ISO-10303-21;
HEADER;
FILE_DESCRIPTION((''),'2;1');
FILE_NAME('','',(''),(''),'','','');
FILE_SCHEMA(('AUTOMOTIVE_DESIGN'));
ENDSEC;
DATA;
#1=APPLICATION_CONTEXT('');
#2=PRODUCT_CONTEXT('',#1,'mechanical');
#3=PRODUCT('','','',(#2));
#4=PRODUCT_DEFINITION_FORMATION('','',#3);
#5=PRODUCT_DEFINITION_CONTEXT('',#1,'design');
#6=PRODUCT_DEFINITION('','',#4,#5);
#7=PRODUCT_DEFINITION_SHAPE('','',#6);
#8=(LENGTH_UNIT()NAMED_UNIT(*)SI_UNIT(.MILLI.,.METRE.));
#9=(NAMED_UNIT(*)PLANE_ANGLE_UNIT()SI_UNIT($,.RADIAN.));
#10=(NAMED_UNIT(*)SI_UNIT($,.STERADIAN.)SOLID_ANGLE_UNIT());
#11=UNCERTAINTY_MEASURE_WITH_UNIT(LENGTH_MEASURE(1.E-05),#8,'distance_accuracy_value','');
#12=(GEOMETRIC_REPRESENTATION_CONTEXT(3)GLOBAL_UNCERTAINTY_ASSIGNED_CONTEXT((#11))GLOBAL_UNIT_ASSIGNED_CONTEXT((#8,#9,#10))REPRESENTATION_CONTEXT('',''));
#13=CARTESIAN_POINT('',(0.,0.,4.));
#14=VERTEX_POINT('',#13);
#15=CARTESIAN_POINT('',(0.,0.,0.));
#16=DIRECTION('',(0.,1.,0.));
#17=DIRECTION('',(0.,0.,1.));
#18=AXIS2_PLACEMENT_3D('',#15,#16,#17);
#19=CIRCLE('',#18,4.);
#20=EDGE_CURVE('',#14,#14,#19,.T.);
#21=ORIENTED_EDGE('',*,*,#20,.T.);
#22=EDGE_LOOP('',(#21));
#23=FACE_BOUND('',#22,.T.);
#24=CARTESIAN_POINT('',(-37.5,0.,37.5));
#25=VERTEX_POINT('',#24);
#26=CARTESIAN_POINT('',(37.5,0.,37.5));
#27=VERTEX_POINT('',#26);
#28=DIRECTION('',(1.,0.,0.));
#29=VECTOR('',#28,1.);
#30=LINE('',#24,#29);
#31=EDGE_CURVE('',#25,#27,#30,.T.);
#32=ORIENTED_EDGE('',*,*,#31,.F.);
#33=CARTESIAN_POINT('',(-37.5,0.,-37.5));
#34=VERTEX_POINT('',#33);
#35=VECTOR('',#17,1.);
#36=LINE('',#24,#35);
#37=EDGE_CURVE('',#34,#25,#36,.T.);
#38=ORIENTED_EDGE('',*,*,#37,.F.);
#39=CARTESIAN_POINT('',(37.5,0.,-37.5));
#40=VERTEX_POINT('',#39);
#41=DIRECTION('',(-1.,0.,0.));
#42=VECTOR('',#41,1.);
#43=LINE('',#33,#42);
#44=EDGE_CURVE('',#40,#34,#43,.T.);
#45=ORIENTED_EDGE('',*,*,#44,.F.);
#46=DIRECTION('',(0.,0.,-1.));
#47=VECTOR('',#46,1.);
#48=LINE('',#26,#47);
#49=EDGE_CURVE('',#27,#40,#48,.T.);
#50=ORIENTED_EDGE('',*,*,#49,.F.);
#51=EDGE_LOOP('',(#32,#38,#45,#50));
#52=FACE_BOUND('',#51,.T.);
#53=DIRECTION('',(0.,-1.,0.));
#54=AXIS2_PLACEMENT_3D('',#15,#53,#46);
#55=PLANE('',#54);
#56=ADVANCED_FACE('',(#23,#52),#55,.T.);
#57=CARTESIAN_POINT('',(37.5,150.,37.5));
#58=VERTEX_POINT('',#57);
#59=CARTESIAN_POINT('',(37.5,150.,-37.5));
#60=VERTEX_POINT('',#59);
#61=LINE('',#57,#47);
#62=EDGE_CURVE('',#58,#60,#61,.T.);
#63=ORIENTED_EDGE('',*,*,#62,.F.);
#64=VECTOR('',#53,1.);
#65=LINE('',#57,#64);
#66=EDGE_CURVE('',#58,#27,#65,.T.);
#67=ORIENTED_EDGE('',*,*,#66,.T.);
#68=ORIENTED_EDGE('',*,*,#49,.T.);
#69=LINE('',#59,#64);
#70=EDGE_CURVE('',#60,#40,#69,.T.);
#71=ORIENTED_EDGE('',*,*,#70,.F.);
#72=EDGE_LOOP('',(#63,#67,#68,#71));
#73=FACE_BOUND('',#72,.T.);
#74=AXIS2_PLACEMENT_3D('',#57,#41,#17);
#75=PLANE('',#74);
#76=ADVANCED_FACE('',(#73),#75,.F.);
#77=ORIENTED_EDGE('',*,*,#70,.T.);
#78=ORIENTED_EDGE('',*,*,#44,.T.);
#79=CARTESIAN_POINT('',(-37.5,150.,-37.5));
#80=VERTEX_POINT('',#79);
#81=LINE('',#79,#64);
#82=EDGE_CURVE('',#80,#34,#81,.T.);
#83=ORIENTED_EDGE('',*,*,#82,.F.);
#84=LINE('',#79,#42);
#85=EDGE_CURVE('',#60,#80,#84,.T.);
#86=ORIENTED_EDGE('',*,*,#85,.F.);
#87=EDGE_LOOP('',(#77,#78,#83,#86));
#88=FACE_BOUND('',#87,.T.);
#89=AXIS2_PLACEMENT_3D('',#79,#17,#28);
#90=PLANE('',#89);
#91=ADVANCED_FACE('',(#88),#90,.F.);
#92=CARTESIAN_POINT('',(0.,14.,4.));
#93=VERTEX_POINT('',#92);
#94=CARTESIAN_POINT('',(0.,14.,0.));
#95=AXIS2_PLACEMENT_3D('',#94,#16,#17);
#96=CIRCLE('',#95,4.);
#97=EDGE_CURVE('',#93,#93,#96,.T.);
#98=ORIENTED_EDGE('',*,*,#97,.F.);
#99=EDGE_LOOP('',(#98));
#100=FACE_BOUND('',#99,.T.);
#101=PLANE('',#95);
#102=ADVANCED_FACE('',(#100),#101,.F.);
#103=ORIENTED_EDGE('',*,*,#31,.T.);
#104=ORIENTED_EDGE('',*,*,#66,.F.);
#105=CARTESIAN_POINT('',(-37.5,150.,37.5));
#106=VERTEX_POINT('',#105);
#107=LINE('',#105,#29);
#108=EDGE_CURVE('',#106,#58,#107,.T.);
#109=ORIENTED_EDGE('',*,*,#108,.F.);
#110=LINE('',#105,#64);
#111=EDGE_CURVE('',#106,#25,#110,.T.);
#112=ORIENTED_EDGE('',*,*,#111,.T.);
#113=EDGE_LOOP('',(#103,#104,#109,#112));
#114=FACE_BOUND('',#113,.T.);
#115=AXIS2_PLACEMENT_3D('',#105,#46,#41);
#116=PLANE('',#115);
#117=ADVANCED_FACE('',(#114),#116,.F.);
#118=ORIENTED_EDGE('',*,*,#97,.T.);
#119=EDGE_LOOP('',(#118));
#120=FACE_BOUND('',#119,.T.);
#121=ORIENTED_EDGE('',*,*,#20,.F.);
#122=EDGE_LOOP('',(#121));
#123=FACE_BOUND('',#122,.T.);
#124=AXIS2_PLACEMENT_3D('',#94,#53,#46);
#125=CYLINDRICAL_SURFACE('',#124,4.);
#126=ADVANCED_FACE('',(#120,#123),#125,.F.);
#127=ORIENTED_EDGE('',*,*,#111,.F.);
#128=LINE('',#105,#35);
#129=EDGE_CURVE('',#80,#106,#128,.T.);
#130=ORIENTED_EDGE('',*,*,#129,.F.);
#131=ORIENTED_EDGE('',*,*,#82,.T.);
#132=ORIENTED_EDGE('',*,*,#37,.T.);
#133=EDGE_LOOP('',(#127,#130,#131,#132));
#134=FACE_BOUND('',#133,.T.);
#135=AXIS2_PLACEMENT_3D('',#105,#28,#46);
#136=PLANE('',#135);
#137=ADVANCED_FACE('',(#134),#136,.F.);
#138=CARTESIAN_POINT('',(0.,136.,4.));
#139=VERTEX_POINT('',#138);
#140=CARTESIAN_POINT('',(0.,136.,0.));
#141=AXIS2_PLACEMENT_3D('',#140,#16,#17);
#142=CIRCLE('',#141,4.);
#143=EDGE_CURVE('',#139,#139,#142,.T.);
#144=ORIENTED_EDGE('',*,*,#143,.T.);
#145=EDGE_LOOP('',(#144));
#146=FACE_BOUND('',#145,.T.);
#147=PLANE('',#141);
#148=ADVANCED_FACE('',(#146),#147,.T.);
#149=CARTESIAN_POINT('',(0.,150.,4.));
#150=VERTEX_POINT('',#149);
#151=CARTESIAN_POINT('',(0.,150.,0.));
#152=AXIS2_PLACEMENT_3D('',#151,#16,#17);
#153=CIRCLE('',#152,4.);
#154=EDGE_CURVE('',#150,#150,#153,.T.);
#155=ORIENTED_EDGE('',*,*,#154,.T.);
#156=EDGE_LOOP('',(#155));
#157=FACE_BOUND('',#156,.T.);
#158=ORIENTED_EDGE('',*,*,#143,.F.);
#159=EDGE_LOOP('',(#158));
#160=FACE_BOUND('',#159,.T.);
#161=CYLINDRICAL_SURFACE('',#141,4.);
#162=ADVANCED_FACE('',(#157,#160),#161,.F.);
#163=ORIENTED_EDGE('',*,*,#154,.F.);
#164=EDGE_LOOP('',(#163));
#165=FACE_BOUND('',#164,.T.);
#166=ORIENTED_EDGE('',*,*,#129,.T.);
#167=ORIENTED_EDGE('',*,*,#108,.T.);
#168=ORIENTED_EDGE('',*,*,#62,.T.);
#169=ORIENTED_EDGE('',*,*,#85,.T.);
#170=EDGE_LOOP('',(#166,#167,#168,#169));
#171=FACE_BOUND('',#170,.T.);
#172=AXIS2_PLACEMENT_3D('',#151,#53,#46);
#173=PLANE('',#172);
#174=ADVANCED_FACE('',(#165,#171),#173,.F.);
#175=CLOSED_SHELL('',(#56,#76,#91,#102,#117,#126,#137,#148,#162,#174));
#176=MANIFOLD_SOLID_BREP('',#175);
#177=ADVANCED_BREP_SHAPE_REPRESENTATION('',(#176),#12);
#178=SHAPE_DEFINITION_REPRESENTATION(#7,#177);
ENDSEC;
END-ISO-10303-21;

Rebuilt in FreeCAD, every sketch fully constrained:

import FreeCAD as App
import Part
import Sketcher

V = App.Vector
Q = App.Units.Quantity


def add_polygon(sketch, points):
    """Adds a closed chain of lines whose ends are joined by coincident constraints."""
    first, n = sketch.GeometryCount, len(points)
    for a, b in zip(points, points[1:] + points[:1]):
        sketch.addGeometry(Part.LineSegment(App.Vector(*a, 0), App.Vector(*b, 0)), False)
    for i in range(n):
        sketch.addConstraint(Sketcher.Constraint("Coincident", first + i, 2, first + (i + 1) % n, 1))

doc = App.newDocument("Part")
body = doc.addObject("PartDesign::Body", "Body")

sketch1 = body.newObject("Sketcher::SketchObject", "Sketch")
sketch1.AttachmentSupport = (doc.getObject("XZ_Plane"), [""])
sketch1.MapMode = "FlatFace"
add_polygon(sketch1, [(-37.5, -37.5), (-37.5, 37.5), (37.5, 37.5), (37.5, -37.5)])
sketch1.addConstraint(Sketcher.Constraint("Vertical", 0))
sketch1.addConstraint(Sketcher.Constraint("Horizontal", 1))
sketch1.addConstraint(Sketcher.Constraint("Vertical", 2))
sketch1.addConstraint(Sketcher.Constraint("Horizontal", 3))
sketch1.addConstraint(Sketcher.Constraint("Symmetric", 0, 2, 2, 2, -1, 1))
sketch1.addConstraint(Sketcher.Constraint("Equal", 3, 0))
sketch1.addConstraint(Sketcher.Constraint("DistanceX", 1, 1, 1, 2, Q("75 mm")))
pad1 = body.newObject("PartDesign::Pad", "Pad")
pad1.Profile = sketch1
pad1.Length = 150
pad1.Reversed = True

sketch2 = body.newObject("Sketcher::SketchObject", "Sketch001")
sketch2.AttachmentSupport = (doc.getObject("XZ_Plane"), [""])
sketch2.MapMode = "FlatFace"
sketch2.addGeometry(Part.Circle(V(0, 0, 0), V(0, 0, 1), 4), False)
sketch2.addConstraint(Sketcher.Constraint("Coincident", 0, 3, -1, 1))
sketch2.addConstraint(Sketcher.Constraint("Diameter", 0, Q("8 mm")))
pocket1 = body.newObject("PartDesign::Pocket", "Pocket")
pocket1.Profile = sketch2
pocket1.Length = 14

sketch3 = body.newObject("Sketcher::SketchObject", "Sketch002")
sketch3.AttachmentSupport = (doc.getObject("XZ_Plane"), [""])
sketch3.MapMode = "FlatFace"
sketch3.AttachmentOffset = App.Placement(V(0, 0, -136), App.Rotation())
sketch3.addGeometry(Part.Circle(V(0, 0, 0), V(0, 0, 1), 4), False)
sketch3.addConstraint(Sketcher.Constraint("Coincident", 0, 3, -1, 1))
sketch3.addConstraint(Sketcher.Constraint("Diameter", 0, Q("8 mm")))
pocket2 = body.newObject("PartDesign::Pocket", "Pocket001")
pocket2.Profile = sketch3
pocket2.Length = 14

doc.recompute()
